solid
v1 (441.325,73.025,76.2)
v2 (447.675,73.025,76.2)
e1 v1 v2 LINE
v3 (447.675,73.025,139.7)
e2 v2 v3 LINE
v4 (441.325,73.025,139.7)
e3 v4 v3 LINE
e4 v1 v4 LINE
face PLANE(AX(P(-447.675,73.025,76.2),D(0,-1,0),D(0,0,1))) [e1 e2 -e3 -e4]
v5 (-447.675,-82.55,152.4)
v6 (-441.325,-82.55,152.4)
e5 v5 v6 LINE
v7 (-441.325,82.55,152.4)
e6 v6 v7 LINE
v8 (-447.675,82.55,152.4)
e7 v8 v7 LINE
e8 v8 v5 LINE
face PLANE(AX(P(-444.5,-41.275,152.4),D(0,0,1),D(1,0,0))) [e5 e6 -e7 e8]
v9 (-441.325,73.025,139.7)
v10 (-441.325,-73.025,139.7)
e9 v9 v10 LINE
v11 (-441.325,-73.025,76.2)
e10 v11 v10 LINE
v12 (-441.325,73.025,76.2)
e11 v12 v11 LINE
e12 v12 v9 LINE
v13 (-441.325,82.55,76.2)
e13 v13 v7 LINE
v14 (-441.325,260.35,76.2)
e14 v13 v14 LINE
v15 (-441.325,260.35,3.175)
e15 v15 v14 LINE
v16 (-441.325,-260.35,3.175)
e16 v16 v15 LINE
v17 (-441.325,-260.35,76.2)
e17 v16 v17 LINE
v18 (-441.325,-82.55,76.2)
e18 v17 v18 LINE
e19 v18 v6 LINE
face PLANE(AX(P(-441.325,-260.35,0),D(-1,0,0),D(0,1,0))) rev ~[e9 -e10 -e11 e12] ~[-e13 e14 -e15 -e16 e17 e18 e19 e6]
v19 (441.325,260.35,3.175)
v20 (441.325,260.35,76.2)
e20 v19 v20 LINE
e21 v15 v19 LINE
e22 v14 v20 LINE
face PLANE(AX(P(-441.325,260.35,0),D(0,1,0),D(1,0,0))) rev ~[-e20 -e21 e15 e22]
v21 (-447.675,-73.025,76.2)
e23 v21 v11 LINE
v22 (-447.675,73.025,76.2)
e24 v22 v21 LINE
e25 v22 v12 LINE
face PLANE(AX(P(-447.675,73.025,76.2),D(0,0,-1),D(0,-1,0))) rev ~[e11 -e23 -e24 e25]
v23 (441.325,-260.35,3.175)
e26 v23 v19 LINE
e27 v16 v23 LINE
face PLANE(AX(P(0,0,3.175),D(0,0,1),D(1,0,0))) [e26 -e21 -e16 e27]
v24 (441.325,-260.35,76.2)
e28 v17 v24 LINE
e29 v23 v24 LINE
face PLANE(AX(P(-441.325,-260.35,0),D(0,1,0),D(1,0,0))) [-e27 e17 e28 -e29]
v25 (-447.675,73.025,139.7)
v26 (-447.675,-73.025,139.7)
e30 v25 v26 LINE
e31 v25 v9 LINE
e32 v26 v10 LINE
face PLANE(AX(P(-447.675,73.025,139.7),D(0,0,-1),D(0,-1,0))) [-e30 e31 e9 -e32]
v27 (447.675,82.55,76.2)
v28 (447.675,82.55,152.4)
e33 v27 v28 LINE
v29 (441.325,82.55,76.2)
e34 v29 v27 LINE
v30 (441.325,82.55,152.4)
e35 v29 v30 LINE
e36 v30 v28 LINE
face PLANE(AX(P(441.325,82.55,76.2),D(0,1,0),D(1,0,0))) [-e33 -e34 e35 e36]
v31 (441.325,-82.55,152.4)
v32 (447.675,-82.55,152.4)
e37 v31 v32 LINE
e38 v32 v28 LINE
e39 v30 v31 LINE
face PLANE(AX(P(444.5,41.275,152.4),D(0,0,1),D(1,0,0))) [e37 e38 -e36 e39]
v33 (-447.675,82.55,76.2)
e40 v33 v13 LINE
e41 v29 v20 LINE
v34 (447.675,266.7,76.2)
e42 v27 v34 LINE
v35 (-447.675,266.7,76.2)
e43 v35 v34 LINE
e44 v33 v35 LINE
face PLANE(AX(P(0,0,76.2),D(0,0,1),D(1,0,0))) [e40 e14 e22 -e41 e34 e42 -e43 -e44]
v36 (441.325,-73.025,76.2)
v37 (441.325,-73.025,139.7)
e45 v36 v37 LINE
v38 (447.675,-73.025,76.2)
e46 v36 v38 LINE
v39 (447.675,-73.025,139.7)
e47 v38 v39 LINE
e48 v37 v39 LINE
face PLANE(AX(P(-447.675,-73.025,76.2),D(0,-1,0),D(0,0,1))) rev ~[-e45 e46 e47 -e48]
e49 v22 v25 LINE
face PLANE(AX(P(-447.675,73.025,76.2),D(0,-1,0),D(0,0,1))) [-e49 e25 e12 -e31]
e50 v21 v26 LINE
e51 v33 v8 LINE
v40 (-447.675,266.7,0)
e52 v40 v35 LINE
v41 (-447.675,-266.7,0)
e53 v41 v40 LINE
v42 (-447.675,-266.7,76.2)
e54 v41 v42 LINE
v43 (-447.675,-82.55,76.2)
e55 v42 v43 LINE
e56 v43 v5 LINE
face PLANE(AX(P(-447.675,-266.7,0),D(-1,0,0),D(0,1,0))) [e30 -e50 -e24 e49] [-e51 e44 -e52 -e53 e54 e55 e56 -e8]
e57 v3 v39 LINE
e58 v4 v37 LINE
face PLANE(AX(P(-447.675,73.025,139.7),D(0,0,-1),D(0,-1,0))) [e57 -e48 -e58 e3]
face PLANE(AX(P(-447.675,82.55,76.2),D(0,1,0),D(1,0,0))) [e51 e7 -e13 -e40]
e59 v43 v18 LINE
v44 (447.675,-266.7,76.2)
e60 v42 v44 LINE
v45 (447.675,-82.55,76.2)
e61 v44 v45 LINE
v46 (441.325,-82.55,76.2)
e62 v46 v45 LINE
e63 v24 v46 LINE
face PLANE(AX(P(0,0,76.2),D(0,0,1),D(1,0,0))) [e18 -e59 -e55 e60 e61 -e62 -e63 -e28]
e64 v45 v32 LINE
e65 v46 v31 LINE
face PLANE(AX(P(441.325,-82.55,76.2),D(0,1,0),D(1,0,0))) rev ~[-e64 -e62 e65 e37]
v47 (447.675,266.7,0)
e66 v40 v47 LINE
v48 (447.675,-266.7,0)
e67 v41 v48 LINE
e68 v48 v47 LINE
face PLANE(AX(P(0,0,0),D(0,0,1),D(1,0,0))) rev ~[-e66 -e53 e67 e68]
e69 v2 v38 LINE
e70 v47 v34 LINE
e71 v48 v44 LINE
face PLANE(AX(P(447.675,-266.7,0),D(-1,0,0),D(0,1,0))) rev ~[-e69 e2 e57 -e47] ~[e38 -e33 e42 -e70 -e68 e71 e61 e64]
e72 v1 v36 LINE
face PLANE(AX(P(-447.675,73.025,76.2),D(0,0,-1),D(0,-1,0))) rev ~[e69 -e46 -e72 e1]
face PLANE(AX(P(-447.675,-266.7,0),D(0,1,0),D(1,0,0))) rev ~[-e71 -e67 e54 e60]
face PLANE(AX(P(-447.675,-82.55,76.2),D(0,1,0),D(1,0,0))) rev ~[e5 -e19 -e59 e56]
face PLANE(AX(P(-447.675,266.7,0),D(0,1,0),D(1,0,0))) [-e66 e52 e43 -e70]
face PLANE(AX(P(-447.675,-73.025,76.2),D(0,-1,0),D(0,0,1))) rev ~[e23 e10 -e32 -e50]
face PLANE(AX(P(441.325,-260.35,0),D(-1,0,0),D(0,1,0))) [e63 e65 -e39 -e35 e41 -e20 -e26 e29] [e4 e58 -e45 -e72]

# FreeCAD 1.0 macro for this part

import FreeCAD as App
import Part
import Sketcher
from FreeCAD import Vector
Q = App.Units.Quantity


def add_polygon(sketch, points):
    """Adds a closed chain of lines whose ends are joined by coincident constraints."""
    first, n = sketch.GeometryCount, len(points)
    for a, b in zip(points, points[1:] + points[:1]):
        sketch.addGeometry(Part.LineSegment(App.Vector(*a, 0), App.Vector(*b, 0)), False)
    for i in range(n):
        sketch.addConstraint(Sketcher.Constraint("Coincident", first + i, 2, first + (i + 1) % n, 1))

doc = App.newDocument("Part")
body = doc.addObject("PartDesign::Body", "Body")

sketch1 = body.newObject("Sketcher::SketchObject", "Sketch")
sketch1.AttachmentSupport = (doc.getObject("XY_Plane"), [""])
sketch1.MapMode = "FlatFace"
add_polygon(sketch1, [(-448, 267), (-448, -267), (448, -267), (448, 267)])
add_polygon(sketch1, [(441, -260), (-441, -260), (-441, 260), (441, 260)])
sketch1.addConstraint([
    Sketcher.Constraint("Vertical", 0),
    Sketcher.Constraint("Horizontal", 1),
    Sketcher.Constraint("Vertical", 2),
    Sketcher.Constraint("Horizontal", 3),
    Sketcher.Constraint("Horizontal", 4),
    Sketcher.Constraint("Vertical", 5),
    Sketcher.Constraint("Horizontal", 6),
    Sketcher.Constraint("Vertical", 7),
    Sketcher.Constraint("Symmetric", 0, 2, 2, 2, -1, 1),
    Sketcher.Constraint("Symmetric", 4, 2, 6, 2, -1, 1),
    Sketcher.Constraint("DistanceY", 0, 2, 0, 1, Q("21 in")),
    Sketcher.Constraint("DistanceY", 5, 1, 5, 2, Q("20.5 in")),
    Sketcher.Constraint("DistanceX", 4, 2, 1, 2, Q("35 in")),
    Sketcher.Constraint("DistanceX", 1, 1, 1, 2, Q("35.25 in")),
])
pad1 = body.newObject("PartDesign::Pad", "Pad")
pad1.Profile = sketch1
pad1.Length = Q("3 in")

sketch2 = body.newObject("Sketcher::SketchObject", "Sketch001")
sketch2.AttachmentSupport = (doc.getObject("XY_Plane"), [""])
sketch2.MapMode = "FlatFace"
add_polygon(sketch2, [(-441, 260), (-441, -260), (441, -260), (441, 260)])
sketch2.addConstraint([
    Sketcher.Constraint("Vertical", 0),
    Sketcher.Constraint("Horizontal", 1),
    Sketcher.Constraint("Vertical", 2),
    Sketcher.Constraint("Horizontal", 3),
    Sketcher.Constraint("Symmetric", 0, 2, 2, 2, -1, 1),
    Sketcher.Constraint("DistanceY", 0, 2, 0, 1, Q("20.5 in")),
    Sketcher.Constraint("DistanceX", 1, 1, 1, 2, Q("34.75 in")),
])
pad2 = body.newObject("PartDesign::Pad", "Pad001")
pad2.Profile = sketch2
pad2.Length = Q("0.125 in")

sketch3 = body.newObject("Sketcher::SketchObject", "Sketch002")
sketch3.AttachmentSupport = (doc.getObject("XY_Plane"), [""])
sketch3.MapMode = "FlatFace"
sketch3.AttachmentOffset = App.Placement(Vector(0, 0, 3 * 25.4), App.Rotation())
add_polygon(sketch3, [(-448, -83), (-441, -83), (-441, 83), (-448, 83)])
add_polygon(sketch3, [(441, 83), (441, -83), (448, -83), (448, 83)])
sketch3.addConstraint([
    Sketcher.Constraint("Horizontal", 0),
    Sketcher.Constraint("Vertical", 1),
    Sketcher.Constraint("Horizontal", 2),
    Sketcher.Constraint("Vertical", 3),
    Sketcher.Constraint("Vertical", 4),
    Sketcher.Constraint("Horizontal", 5),
    Sketcher.Constraint("Vertical", 6),
    Sketcher.Constraint("Horizontal", 7),
    Sketcher.Constraint("Symmetric", 1, 2, 4, 2, -1, 1),
    Sketcher.Constraint("Symmetric", 3, 2, 6, 2, -1, 1),
    Sketcher.Constraint("Horizontal", 3, 2, 4, 2),
    Sketcher.Constraint("DistanceY", 1, 1, 1, 2, Q("6.5 in")),
    Sketcher.Constraint("DistanceX", 3, 2, 4, 2, Q("35 in")),
    Sketcher.Constraint("DistanceX", 0, 1, 0, 2, Q("0.25 in")),
])
pad3 = body.newObject("PartDesign::Pad", "Pad002")
pad3.Profile = sketch3
pad3.Length = Q("3 in")

sketch4 = body.newObject("Sketcher::SketchObject", "Sketch003")
sketch4.AttachmentSupport = (doc.getObject("YZ_Plane"), [""])
sketch4.MapMode = "FlatFace"
sketch4.AttachmentOffset = App.Placement(Vector(0, 0, -17.625 * 25.4), App.Rotation())
add_polygon(sketch4, [(73, 140), (73, 76), (-73, 76), (-73, 140)])
sketch4.addConstraint([
    Sketcher.Constraint("Vertical", 0),
    Sketcher.Constraint("Horizontal", 1),
    Sketcher.Constraint("Vertical", 2),
    Sketcher.Constraint("Horizontal", 3),
    Sketcher.Constraint("DistanceY", 0, 2, 0, 1, Q("2.5 in")),
    Sketcher.Constraint("DistanceY", -1, 1, 0, 2, Q("3 in")),
    Sketcher.Constraint("DistanceX", 1, 2, 1, 1, Q("5.75 in")),
    Sketcher.Constraint("DistanceX", -1, 1, 0, 2, Q("2.875 in")),
])
pocket1 = body.newObject("PartDesign::Pocket", "Pocket")
pocket1.Profile = sketch4
pocket1.Type = "ThroughAll"
pocket1.Reversed = True

doc.recompute()
